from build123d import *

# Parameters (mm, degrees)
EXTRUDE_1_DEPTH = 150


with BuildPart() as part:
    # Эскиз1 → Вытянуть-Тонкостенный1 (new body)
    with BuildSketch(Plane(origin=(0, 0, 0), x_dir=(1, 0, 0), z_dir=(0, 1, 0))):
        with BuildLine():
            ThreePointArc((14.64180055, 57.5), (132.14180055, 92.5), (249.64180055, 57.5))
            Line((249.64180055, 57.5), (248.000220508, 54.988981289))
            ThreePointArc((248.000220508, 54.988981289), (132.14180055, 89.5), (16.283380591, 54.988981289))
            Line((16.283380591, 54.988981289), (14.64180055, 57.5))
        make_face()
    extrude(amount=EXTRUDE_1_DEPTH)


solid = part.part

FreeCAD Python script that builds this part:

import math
import FreeCAD as App
import Part
import Sketcher

doc = App.newDocument("Part")
body = doc.addObject("PartDesign::Body", "Body")

# Sketch on XZ plane
sketch1 = body.newObject("Sketcher::SketchObject", "Sketch")
sketch1.AttachmentSupport = (doc.getObject("XZ_Plane"), [""])
sketch1.MapMode = "FlatFace"
sketch1.addGeometry([
    Part.ArcOfCircle(Part.Circle(App.Vector(132.1, 122.2, 0), App.Vector(0, 0, 1), 214.7), math.radians(-123), math.radians(-57)),
    Part.LineSegment(App.Vector(14.6, -57.5, 0), App.Vector(16.3, -55, 0)),
    Part.ArcOfCircle(Part.Circle(App.Vector(132.1, 122.2, 0), App.Vector(0, 0, 1), 211.7), math.radians(-123), math.radians(-57)),
    Part.LineSegment(App.Vector(248, -55, 0), App.Vector(249.6, -57.5, 0)),
], False)
sketch1.addConstraint([
    Sketcher.Constraint("Coincident", 0, 1, 1, 1),
    Sketcher.Constraint("Coincident", 1, 2, 2, 1),
    Sketcher.Constraint("Coincident", 2, 2, 3, 1),
    Sketcher.Constraint("Coincident", 3, 2, 0, 2),
    Sketcher.Constraint("Coincident", 2, 3, 0, 3),
    Sketcher.Constraint("Horizontal", 1, 2, 2, 2),
    Sketcher.Constraint("Horizontal", 0, 1, 3, 2),
    Sketcher.Constraint("Distance", 1, 3.0),
    Sketcher.Constraint("DistanceX", 0, 1, 3, 2, 235.0),
    Sketcher.Constraint("DistanceY", 0, 1, -1, 1, 57.5),
    Sketcher.Constraint("Radius", 0, 214.732143),
    Sketcher.Constraint("DistanceX", -1, 1, 0, 3, 132.141801),
    Sketcher.Constraint("DistanceX", -1, 1, 1, 2, 16.283381),
])
pad1 = body.newObject("PartDesign::Pad", "Pad")
pad1.Profile = sketch1
pad1.Length = 150
pad1.Reversed = True

doc.recompute()
